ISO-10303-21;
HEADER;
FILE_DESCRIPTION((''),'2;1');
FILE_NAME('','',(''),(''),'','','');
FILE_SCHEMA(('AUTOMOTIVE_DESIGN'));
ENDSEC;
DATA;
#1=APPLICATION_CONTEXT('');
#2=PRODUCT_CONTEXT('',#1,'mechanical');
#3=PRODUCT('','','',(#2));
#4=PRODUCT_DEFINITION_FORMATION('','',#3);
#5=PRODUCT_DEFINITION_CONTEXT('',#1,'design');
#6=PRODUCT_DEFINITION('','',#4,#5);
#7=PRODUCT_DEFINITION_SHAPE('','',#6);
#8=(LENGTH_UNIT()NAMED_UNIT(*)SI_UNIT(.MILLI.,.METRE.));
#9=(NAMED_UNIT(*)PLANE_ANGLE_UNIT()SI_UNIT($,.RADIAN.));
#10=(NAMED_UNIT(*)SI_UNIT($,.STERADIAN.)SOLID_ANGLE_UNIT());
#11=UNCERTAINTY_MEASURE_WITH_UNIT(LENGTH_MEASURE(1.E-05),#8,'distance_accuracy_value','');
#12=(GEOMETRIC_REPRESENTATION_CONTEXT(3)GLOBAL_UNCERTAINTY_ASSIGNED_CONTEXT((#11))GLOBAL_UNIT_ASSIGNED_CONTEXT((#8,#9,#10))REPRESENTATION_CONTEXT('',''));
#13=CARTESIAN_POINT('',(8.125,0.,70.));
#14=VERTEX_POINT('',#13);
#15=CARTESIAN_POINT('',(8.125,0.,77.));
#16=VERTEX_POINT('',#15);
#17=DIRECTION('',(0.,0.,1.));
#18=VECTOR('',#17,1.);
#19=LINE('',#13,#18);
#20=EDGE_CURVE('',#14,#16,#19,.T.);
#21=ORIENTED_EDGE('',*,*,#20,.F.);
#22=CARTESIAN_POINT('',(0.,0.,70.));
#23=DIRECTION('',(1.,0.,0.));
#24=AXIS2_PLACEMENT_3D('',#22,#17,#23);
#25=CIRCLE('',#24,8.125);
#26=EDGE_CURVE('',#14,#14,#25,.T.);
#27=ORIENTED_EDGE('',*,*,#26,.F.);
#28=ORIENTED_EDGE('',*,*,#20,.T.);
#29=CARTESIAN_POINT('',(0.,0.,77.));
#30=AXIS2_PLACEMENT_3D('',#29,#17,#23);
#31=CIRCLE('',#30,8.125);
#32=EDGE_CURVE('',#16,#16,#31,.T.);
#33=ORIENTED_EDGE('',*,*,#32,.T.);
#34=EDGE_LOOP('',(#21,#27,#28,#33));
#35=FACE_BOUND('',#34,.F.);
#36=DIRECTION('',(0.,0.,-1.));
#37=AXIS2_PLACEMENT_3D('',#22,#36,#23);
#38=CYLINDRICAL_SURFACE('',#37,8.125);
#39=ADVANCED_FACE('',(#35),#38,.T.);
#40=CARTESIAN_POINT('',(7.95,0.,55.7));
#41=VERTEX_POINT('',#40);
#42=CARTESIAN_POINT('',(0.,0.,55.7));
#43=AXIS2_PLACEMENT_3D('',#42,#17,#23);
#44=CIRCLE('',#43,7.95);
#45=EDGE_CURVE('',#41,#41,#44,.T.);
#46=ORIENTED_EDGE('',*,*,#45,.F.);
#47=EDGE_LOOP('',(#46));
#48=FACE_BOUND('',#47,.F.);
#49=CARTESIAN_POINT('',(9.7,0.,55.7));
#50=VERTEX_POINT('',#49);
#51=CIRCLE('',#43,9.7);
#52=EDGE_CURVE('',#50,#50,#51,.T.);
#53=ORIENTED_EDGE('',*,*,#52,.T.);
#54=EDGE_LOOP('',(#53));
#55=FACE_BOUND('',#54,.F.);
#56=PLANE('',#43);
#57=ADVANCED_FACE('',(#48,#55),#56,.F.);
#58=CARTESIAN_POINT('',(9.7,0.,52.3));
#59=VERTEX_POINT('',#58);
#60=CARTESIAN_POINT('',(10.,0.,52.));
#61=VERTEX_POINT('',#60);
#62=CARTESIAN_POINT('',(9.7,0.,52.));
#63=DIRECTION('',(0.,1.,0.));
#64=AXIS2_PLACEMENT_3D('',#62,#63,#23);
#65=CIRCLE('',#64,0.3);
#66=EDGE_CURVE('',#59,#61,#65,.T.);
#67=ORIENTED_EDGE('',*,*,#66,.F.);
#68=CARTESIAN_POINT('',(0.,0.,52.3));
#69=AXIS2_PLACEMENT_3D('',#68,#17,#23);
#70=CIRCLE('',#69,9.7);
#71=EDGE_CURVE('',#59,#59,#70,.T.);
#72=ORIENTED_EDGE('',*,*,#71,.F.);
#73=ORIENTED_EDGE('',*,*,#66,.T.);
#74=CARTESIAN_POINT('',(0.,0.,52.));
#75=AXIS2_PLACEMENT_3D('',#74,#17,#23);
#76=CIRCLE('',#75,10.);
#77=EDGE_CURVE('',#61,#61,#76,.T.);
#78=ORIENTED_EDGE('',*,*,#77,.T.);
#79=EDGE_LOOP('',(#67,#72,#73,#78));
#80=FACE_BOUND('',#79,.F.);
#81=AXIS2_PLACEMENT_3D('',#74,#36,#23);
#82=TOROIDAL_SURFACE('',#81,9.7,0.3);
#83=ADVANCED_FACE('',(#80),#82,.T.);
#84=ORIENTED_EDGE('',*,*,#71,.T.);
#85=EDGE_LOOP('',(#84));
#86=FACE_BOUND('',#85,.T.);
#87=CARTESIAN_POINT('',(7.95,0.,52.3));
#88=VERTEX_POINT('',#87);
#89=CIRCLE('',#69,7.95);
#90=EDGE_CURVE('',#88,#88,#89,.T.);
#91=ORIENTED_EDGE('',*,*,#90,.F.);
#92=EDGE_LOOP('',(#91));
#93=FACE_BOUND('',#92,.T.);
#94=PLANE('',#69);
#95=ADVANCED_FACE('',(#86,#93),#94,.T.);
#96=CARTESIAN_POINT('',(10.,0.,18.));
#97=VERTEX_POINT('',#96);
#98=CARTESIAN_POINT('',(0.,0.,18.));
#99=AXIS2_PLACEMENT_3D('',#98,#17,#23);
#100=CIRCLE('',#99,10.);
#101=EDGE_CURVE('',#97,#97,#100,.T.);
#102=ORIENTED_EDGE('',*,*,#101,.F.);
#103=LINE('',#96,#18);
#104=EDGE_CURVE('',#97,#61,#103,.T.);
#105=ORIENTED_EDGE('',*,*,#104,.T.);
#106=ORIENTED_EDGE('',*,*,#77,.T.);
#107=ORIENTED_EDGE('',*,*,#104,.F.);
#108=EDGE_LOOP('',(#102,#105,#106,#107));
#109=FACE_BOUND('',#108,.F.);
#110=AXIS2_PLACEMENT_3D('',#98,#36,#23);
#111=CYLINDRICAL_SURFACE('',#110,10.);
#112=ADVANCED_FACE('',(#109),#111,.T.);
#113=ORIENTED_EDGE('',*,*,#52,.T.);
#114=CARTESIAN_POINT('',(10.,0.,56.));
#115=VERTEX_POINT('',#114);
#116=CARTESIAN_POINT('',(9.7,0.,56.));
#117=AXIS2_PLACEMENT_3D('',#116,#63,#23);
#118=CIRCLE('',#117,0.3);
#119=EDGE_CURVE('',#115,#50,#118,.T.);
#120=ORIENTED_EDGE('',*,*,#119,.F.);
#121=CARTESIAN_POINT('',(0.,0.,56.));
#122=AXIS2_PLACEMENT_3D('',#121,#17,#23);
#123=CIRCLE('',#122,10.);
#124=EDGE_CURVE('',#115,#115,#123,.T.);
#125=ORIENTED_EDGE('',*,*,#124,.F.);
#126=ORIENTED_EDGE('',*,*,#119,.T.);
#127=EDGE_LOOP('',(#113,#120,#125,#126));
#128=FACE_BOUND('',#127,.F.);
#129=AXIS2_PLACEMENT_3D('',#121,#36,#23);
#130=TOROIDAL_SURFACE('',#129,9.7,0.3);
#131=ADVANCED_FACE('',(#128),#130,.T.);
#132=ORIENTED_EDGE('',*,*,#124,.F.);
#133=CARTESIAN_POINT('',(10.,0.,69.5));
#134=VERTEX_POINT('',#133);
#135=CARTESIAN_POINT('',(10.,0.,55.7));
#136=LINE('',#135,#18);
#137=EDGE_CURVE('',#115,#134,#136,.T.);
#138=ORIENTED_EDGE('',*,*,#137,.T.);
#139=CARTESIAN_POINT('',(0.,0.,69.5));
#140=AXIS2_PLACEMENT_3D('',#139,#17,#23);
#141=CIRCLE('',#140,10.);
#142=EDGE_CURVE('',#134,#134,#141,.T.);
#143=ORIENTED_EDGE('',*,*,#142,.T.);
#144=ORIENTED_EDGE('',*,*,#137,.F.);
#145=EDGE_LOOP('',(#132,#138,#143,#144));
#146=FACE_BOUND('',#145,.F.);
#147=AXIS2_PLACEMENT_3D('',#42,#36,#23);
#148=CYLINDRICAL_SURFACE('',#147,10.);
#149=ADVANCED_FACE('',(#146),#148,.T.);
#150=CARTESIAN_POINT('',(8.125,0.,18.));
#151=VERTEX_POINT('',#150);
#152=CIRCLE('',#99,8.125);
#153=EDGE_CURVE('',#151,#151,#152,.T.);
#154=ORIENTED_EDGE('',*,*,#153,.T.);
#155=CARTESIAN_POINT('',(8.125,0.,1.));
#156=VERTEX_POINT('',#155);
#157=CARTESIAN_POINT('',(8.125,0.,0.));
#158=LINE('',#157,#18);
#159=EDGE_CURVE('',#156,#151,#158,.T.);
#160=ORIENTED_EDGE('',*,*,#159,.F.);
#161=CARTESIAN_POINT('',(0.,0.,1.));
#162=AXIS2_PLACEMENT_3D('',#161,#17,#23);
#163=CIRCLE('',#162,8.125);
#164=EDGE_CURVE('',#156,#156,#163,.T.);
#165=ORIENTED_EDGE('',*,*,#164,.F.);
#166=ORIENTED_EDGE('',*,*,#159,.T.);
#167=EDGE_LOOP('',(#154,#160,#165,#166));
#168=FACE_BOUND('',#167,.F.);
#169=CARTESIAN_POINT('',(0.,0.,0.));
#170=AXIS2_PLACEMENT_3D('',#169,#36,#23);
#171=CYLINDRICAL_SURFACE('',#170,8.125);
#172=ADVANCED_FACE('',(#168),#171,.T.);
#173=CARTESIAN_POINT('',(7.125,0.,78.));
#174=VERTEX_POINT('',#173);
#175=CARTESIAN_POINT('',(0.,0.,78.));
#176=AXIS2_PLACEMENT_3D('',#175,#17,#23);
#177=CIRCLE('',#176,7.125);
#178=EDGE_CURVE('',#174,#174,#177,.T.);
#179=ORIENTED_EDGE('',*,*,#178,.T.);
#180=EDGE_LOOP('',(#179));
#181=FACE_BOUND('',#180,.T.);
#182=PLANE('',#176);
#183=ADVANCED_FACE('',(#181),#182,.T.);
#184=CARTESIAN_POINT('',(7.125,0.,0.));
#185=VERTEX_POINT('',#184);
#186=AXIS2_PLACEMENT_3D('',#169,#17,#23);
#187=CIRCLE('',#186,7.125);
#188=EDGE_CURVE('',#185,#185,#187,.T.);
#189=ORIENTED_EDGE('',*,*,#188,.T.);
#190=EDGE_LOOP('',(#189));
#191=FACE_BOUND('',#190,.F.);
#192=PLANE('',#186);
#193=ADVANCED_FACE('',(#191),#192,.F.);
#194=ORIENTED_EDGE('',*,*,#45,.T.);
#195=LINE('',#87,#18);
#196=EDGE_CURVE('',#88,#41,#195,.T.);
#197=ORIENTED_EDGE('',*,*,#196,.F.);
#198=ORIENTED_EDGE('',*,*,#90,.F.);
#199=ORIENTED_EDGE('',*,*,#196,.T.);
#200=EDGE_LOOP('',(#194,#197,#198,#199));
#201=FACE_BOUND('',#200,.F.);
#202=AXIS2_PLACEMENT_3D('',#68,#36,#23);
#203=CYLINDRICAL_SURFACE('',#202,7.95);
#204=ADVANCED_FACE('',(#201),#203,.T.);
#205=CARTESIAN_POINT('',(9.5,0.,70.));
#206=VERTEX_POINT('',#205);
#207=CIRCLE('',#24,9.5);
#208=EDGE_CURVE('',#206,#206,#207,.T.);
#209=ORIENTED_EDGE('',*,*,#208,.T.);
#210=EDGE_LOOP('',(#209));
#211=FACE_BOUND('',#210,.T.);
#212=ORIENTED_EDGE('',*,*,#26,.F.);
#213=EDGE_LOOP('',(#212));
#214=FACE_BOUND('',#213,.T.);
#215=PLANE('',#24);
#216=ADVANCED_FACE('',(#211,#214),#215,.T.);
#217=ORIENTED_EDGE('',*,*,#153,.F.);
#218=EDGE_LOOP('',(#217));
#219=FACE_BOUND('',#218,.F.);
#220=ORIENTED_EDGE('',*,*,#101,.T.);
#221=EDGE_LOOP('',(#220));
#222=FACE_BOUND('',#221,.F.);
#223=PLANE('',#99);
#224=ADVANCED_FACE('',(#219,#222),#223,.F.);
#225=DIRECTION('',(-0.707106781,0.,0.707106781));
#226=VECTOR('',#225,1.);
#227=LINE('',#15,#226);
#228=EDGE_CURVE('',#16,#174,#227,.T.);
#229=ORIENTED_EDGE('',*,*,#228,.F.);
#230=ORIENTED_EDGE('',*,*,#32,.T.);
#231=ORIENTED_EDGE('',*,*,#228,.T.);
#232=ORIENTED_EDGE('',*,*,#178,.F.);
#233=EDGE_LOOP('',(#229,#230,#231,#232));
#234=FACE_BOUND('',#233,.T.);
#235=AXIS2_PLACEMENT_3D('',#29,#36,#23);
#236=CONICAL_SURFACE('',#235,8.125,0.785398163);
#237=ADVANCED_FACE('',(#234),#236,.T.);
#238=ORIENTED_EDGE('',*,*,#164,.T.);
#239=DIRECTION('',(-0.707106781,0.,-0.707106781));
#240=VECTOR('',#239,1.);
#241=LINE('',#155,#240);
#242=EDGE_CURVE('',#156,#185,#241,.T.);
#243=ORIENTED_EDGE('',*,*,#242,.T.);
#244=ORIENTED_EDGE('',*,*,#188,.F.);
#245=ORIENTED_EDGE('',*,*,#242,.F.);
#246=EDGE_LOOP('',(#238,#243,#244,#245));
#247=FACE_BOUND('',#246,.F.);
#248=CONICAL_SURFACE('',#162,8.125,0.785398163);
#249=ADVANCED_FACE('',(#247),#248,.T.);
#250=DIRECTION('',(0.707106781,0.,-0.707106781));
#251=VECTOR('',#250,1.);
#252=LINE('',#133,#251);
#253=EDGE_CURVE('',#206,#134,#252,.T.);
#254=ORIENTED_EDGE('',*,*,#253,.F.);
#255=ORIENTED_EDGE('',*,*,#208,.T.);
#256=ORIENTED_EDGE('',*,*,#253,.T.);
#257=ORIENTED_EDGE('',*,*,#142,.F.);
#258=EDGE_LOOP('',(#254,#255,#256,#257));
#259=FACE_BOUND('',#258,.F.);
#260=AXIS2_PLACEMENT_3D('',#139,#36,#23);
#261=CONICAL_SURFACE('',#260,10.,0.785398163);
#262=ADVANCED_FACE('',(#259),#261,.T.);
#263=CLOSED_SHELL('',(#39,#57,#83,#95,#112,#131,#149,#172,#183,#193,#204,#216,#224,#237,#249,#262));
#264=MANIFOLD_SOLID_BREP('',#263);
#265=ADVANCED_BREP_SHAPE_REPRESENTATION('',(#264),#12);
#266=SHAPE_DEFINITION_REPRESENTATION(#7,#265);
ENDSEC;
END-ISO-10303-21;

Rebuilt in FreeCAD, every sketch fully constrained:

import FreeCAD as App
import Part
import Sketcher
from FreeCAD import Vector
Q = App.Units.Quantity


def edges_at(feature, points):
    """Names of the edges that pass closest to the given points."""
    edges = feature.Shape.Edges
    near = lambda p: min(range(len(edges)), key=lambda i: edges[i].distToShape(Part.Vertex(*p))[0])
    return sorted({f"Edge{near(p) + 1}" for p in points})

doc = App.newDocument("Part")
params = doc.addObject("Spreadsheet::Sheet", "Params")
for row, (alias, value) in enumerate([
    ("sketch1_diameter", "16.25 mm"),
    ("pad1_length", "18 mm"),
    ("chamfer_size", "1 mm"),
    ("sketch2_diameter", "20 mm"),
    ("pad2_length", "34.3 mm"),
    ("sketch3_diameter", "15.9 mm"),
    ("pad3_length", "3.4 mm"),
    ("sketch4_diameter", "20 mm"),
    ("pad4_length", "14.3 mm"),
    ("sketch5_diameter", "16.25 mm"),
    ("pad5_length", "8 mm"),
    ("chamfer2_size", "1 mm"),
    ("chamfer3_size", "0.5 mm"),
    ("fillet_radius", "0.3 mm"),
], start=1):
    params.set(f"A{row}", alias)
    params.set(f"B{row}", "=" + value)
    params.setAlias(f"B{row}", alias)

body = doc.addObject("PartDesign::Body", "Body")

sketch1 = body.newObject("Sketcher::SketchObject", "Sketch")
sketch1.AttachmentSupport = (doc.getObject("XY_Plane"), [""])
sketch1.MapMode = "FlatFace"
sketch1.addGeometry(Part.Circle(Vector(0, 0, 0), Vector(0, 0, 1), 8), False)
sketch1.addConstraint(Sketcher.Constraint("Coincident", 0, 3, -1, 1))
sketch1.addConstraint(Sketcher.Constraint("Diameter", 0, Q("16.25 mm")))
sketch1.setExpression("Constraints[1]", "Params.sketch1_diameter")
pad1 = body.newObject("PartDesign::Pad", "Pad")
pad1.Profile = sketch1
pad1.setExpression("Length", "Params.pad1_length")
doc.recompute()

chamfer = body.newObject("PartDesign::Chamfer", "Chamfer")
chamfer.Base = (pad1, edges_at(pad1, [(-8.125, 0, 0)]))
chamfer.setExpression("Size", "Params.chamfer_size")

sketch2 = body.newObject("Sketcher::SketchObject", "Sketch001")
sketch2.AttachmentSupport = (doc.getObject("XY_Plane"), [""])
sketch2.MapMode = "FlatFace"
sketch2.AttachmentOffset = App.Placement(Vector(0, 0, 18), App.Rotation())
sketch2.addGeometry(Part.Circle(Vector(0, 0, 0), Vector(0, 0, 1), 10), False)
sketch2.addConstraint(Sketcher.Constraint("Coincident", 0, 3, -1, 1))
sketch2.addConstraint(Sketcher.Constraint("Diameter", 0, Q("20 mm")))
sketch2.setExpression("Constraints[1]", "Params.sketch2_diameter")
pad2 = body.newObject("PartDesign::Pad", "Pad001")
pad2.Profile = sketch2
pad2.setExpression("Length", "Params.pad2_length")

sketch3 = body.newObject("Sketcher::SketchObject", "Sketch002")
sketch3.AttachmentSupport = (doc.getObject("XY_Plane"), [""])
sketch3.MapMode = "FlatFace"
sketch3.AttachmentOffset = App.Placement(Vector(0, 0, 52.3), App.Rotation())
sketch3.addGeometry(Part.Circle(Vector(0, 0, 0), Vector(0, 0, 1), 8), False)
sketch3.addConstraint(Sketcher.Constraint("Coincident", 0, 3, -1, 1))
sketch3.addConstraint(Sketcher.Constraint("Diameter", 0, Q("15.9 mm")))
sketch3.setExpression("Constraints[1]", "Params.sketch3_diameter")
pad3 = body.newObject("PartDesign::Pad", "Pad002")
pad3.Profile = sketch3
pad3.setExpression("Length", "Params.pad3_length")

sketch4 = body.newObject("Sketcher::SketchObject", "Sketch003")
sketch4.AttachmentSupport = (doc.getObject("XY_Plane"), [""])
sketch4.MapMode = "FlatFace"
sketch4.AttachmentOffset = App.Placement(Vector(0, 0, 55.7), App.Rotation())
sketch4.addGeometry(Part.Circle(Vector(0, 0, 0), Vector(0, 0, 1), 10), False)
sketch4.addConstraint(Sketcher.Constraint("Coincident", 0, 3, -1, 1))
sketch4.addConstraint(Sketcher.Constraint("Diameter", 0, Q("20 mm")))
sketch4.setExpression("Constraints[1]", "Params.sketch4_diameter")
pad4 = body.newObject("PartDesign::Pad", "Pad003")
pad4.Profile = sketch4
pad4.setExpression("Length", "Params.pad4_length")

sketch5 = body.newObject("Sketcher::SketchObject", "Sketch004")
sketch5.AttachmentSupport = (doc.getObject("XY_Plane"), [""])
sketch5.MapMode = "FlatFace"
sketch5.AttachmentOffset = App.Placement(Vector(0, 0, 70), App.Rotation())
sketch5.addGeometry(Part.Circle(Vector(0, 0, 0), Vector(0, 0, 1), 8), False)
sketch5.addConstraint(Sketcher.Constraint("Coincident", 0, 3, -1, 1))
sketch5.addConstraint(Sketcher.Constraint("Diameter", 0, Q("16.25 mm")))
sketch5.setExpression("Constraints[1]", "Params.sketch5_diameter")
pad5 = body.newObject("PartDesign::Pad", "Pad004")
pad5.Profile = sketch5
pad5.setExpression("Length", "Params.pad5_length")
doc.recompute()

chamfer2 = body.newObject("PartDesign::Chamfer", "Chamfer001")
chamfer2.Base = (pad5, edges_at(pad5, [(-8.125, 0, 78)]))
chamfer2.setExpression("Size", "Params.chamfer2_size")
doc.recompute()

chamfer3 = body.newObject("PartDesign::Chamfer", "Chamfer002")
chamfer3.Base = (chamfer2, edges_at(chamfer2, [(-10, 0, 70)]))
chamfer3.setExpression("Size", "Params.chamfer3_size")
doc.recompute()

fillet = body.newObject("PartDesign::Fillet", "Fillet")
fillet.Base = (chamfer3, edges_at(chamfer3, [(-10, 0, 55.7), (-10, 0, 52.3)]))
fillet.setExpression("Radius", "Params.fillet_radius")

doc.recompute()
